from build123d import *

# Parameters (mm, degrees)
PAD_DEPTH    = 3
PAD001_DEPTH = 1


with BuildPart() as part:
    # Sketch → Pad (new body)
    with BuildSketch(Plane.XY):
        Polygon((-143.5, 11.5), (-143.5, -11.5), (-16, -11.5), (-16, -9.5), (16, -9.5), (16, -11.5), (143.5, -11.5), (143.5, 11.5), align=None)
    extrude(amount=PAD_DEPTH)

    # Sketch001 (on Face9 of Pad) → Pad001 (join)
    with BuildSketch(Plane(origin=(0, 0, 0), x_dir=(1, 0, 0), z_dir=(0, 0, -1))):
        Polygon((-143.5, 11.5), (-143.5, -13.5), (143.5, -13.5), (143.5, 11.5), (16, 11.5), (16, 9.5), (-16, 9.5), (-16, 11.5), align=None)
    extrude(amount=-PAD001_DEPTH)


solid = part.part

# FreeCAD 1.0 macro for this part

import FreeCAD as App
import Part
import Sketcher

V = App.Vector


def add_polygon(sketch, points):
    """Adds a closed chain of lines whose ends are joined by coincident constraints."""
    first, n = sketch.GeometryCount, len(points)
    for a, b in zip(points, points[1:] + points[:1]):
        sketch.addGeometry(Part.LineSegment(App.Vector(*a, 0), App.Vector(*b, 0)), False)
    for i in range(n):
        sketch.addConstraint(Sketcher.Constraint("Coincident", first + i, 2, first + (i + 1) % n, 1))

doc = App.newDocument("Part")
params = doc.addObject("Spreadsheet::Sheet", "Params")
for row, (alias, value) in enumerate([
    ("sketch1_width", "32 mm"),
    ("sketch1_width2", "287 mm"),
    ("sketch1_height", "23 mm"),
    ("sketch1_height2", "2 mm"),
    ("pad1_length", "3 mm"),
    ("sketch2_width", "287 mm"),
    ("sketch2_width2", "32 mm"),
    ("sketch2_height", "25 mm"),
    ("sketch2_height2", "2 mm"),
    ("pad2_length", "1 mm"),
], start=1):
    params.set(f"A{row}", alias)
    params.set(f"B{row}", "=" + value)
    params.setAlias(f"B{row}", alias)

body = doc.addObject("PartDesign::Body", "Body")

# Sketch on XY plane
sketch1 = doc.addObject("Sketcher::SketchObject", "Sketch")
body.addObject(sketch1)
sketch1.AttachmentSupport = (doc.XY_Plane, [""])
sketch1.MapMode = "FlatFace"
add_polygon(sketch1, [(-143.5, 11.5), (-143.5, -11.5), (-16, -11.5), (-16, -9.5), (16, -9.5), (16, -11.5), (143.5, -11.5), (143.5, 11.5)])  # lines 0-7
sketch1.addConstraint(Sketcher.Constraint("Vertical", 0))
sketch1.addConstraint(Sketcher.Constraint("Horizontal", 1))
sketch1.addConstraint(Sketcher.Constraint("Vertical", 2))
sketch1.addConstraint(Sketcher.Constraint("Horizontal", 3))
sketch1.addConstraint(Sketcher.Constraint("Vertical", 4))
sketch1.addConstraint(Sketcher.Constraint("Horizontal", 5))
sketch1.addConstraint(Sketcher.Constraint("Vertical", 6))
sketch1.addConstraint(Sketcher.Constraint("Horizontal", 7))
sketch1.addConstraint(Sketcher.Constraint("Symmetric", 0, 2, 6, 2, -1, 1))
sketch1.addConstraint(Sketcher.Constraint("Symmetric", 1, 2, 4, 2, -2))
sketch1.addConstraint(Sketcher.Constraint("DistanceX", 3, 1, 3, 2, 32.0))
sketch1.addConstraint(Sketcher.Constraint("DistanceX", 7, 2, 7, 1, 287.0))
sketch1.addConstraint(Sketcher.Constraint("DistanceY", 0, 2, 0, 1, 23.0))
sketch1.addConstraint(Sketcher.Constraint("DistanceY", 2, 1, 2, 2, 2.0))
sketch1.setExpression("Constraints[18]", "Params.sketch1_width")
sketch1.setExpression("Constraints[19]", "Params.sketch1_width2")
sketch1.setExpression("Constraints[20]", "Params.sketch1_height")
sketch1.setExpression("Constraints[21]", "Params.sketch1_height2")
pad1 = doc.addObject("PartDesign::Pad", "Pad")
body.addObject(pad1)
pad1.Profile = sketch1
pad1.setExpression("Length", "Params.pad1_length")

# Sketch on XY plane
sketch2 = doc.addObject("Sketcher::SketchObject", "Sketch001")
body.addObject(sketch2)
sketch2.AttachmentSupport = (doc.XY_Plane, [""])
sketch2.MapMode = "FlatFace"
add_polygon(sketch2, [(-143.5, -11.5), (-143.5, 13.5), (143.5, 13.5), (143.5, -11.5), (16, -11.5), (16, -9.5), (-16, -9.5), (-16, -11.5)])  # lines 0-7
sketch2.addConstraint(Sketcher.Constraint("Vertical", 0))
sketch2.addConstraint(Sketcher.Constraint("Horizontal", 1))
sketch2.addConstraint(Sketcher.Constraint("Vertical", 2))
sketch2.addConstraint(Sketcher.Constraint("Horizontal", 3))
sketch2.addConstraint(Sketcher.Constraint("Vertical", 4))
sketch2.addConstraint(Sketcher.Constraint("Horizontal", 5))
sketch2.addConstraint(Sketcher.Constraint("Vertical", 6))
sketch2.addConstraint(Sketcher.Constraint("Horizontal", 7))
sketch2.addConstraint(Sketcher.Constraint("Symmetric", 3, 2, 6, 2, -2))
sketch2.addConstraint(Sketcher.Constraint("Equal", 3, 7))
sketch2.addConstraint(Sketcher.Constraint("DistanceX", 1, 1, 1, 2, 287.0))
sketch2.addConstraint(Sketcher.Constraint("DistanceX", 5, 2, 5, 1, 32.0))
sketch2.addConstraint(Sketcher.Constraint("DistanceY", 0, 1, 0, 2, 25.0))
sketch2.addConstraint(Sketcher.Constraint("DistanceY", 4, 1, 4, 2, 2.0))
sketch2.addConstraint(Sketcher.Constraint("DistanceY", -1, 1, 0, 2, 13.5))
sketch2.setExpression("Constraints[18]", "Params.sketch2_width")
sketch2.setExpression("Constraints[19]", "Params.sketch2_width2")
sketch2.setExpression("Constraints[20]", "Params.sketch2_height")
sketch2.setExpression("Constraints[21]", "Params.sketch2_height2")
pad2 = doc.addObject("PartDesign::Pad", "Pad001")
body.addObject(pad2)
pad2.Profile = sketch2
pad2.setExpression("Length", "Params.pad2_length")

doc.recompute()
